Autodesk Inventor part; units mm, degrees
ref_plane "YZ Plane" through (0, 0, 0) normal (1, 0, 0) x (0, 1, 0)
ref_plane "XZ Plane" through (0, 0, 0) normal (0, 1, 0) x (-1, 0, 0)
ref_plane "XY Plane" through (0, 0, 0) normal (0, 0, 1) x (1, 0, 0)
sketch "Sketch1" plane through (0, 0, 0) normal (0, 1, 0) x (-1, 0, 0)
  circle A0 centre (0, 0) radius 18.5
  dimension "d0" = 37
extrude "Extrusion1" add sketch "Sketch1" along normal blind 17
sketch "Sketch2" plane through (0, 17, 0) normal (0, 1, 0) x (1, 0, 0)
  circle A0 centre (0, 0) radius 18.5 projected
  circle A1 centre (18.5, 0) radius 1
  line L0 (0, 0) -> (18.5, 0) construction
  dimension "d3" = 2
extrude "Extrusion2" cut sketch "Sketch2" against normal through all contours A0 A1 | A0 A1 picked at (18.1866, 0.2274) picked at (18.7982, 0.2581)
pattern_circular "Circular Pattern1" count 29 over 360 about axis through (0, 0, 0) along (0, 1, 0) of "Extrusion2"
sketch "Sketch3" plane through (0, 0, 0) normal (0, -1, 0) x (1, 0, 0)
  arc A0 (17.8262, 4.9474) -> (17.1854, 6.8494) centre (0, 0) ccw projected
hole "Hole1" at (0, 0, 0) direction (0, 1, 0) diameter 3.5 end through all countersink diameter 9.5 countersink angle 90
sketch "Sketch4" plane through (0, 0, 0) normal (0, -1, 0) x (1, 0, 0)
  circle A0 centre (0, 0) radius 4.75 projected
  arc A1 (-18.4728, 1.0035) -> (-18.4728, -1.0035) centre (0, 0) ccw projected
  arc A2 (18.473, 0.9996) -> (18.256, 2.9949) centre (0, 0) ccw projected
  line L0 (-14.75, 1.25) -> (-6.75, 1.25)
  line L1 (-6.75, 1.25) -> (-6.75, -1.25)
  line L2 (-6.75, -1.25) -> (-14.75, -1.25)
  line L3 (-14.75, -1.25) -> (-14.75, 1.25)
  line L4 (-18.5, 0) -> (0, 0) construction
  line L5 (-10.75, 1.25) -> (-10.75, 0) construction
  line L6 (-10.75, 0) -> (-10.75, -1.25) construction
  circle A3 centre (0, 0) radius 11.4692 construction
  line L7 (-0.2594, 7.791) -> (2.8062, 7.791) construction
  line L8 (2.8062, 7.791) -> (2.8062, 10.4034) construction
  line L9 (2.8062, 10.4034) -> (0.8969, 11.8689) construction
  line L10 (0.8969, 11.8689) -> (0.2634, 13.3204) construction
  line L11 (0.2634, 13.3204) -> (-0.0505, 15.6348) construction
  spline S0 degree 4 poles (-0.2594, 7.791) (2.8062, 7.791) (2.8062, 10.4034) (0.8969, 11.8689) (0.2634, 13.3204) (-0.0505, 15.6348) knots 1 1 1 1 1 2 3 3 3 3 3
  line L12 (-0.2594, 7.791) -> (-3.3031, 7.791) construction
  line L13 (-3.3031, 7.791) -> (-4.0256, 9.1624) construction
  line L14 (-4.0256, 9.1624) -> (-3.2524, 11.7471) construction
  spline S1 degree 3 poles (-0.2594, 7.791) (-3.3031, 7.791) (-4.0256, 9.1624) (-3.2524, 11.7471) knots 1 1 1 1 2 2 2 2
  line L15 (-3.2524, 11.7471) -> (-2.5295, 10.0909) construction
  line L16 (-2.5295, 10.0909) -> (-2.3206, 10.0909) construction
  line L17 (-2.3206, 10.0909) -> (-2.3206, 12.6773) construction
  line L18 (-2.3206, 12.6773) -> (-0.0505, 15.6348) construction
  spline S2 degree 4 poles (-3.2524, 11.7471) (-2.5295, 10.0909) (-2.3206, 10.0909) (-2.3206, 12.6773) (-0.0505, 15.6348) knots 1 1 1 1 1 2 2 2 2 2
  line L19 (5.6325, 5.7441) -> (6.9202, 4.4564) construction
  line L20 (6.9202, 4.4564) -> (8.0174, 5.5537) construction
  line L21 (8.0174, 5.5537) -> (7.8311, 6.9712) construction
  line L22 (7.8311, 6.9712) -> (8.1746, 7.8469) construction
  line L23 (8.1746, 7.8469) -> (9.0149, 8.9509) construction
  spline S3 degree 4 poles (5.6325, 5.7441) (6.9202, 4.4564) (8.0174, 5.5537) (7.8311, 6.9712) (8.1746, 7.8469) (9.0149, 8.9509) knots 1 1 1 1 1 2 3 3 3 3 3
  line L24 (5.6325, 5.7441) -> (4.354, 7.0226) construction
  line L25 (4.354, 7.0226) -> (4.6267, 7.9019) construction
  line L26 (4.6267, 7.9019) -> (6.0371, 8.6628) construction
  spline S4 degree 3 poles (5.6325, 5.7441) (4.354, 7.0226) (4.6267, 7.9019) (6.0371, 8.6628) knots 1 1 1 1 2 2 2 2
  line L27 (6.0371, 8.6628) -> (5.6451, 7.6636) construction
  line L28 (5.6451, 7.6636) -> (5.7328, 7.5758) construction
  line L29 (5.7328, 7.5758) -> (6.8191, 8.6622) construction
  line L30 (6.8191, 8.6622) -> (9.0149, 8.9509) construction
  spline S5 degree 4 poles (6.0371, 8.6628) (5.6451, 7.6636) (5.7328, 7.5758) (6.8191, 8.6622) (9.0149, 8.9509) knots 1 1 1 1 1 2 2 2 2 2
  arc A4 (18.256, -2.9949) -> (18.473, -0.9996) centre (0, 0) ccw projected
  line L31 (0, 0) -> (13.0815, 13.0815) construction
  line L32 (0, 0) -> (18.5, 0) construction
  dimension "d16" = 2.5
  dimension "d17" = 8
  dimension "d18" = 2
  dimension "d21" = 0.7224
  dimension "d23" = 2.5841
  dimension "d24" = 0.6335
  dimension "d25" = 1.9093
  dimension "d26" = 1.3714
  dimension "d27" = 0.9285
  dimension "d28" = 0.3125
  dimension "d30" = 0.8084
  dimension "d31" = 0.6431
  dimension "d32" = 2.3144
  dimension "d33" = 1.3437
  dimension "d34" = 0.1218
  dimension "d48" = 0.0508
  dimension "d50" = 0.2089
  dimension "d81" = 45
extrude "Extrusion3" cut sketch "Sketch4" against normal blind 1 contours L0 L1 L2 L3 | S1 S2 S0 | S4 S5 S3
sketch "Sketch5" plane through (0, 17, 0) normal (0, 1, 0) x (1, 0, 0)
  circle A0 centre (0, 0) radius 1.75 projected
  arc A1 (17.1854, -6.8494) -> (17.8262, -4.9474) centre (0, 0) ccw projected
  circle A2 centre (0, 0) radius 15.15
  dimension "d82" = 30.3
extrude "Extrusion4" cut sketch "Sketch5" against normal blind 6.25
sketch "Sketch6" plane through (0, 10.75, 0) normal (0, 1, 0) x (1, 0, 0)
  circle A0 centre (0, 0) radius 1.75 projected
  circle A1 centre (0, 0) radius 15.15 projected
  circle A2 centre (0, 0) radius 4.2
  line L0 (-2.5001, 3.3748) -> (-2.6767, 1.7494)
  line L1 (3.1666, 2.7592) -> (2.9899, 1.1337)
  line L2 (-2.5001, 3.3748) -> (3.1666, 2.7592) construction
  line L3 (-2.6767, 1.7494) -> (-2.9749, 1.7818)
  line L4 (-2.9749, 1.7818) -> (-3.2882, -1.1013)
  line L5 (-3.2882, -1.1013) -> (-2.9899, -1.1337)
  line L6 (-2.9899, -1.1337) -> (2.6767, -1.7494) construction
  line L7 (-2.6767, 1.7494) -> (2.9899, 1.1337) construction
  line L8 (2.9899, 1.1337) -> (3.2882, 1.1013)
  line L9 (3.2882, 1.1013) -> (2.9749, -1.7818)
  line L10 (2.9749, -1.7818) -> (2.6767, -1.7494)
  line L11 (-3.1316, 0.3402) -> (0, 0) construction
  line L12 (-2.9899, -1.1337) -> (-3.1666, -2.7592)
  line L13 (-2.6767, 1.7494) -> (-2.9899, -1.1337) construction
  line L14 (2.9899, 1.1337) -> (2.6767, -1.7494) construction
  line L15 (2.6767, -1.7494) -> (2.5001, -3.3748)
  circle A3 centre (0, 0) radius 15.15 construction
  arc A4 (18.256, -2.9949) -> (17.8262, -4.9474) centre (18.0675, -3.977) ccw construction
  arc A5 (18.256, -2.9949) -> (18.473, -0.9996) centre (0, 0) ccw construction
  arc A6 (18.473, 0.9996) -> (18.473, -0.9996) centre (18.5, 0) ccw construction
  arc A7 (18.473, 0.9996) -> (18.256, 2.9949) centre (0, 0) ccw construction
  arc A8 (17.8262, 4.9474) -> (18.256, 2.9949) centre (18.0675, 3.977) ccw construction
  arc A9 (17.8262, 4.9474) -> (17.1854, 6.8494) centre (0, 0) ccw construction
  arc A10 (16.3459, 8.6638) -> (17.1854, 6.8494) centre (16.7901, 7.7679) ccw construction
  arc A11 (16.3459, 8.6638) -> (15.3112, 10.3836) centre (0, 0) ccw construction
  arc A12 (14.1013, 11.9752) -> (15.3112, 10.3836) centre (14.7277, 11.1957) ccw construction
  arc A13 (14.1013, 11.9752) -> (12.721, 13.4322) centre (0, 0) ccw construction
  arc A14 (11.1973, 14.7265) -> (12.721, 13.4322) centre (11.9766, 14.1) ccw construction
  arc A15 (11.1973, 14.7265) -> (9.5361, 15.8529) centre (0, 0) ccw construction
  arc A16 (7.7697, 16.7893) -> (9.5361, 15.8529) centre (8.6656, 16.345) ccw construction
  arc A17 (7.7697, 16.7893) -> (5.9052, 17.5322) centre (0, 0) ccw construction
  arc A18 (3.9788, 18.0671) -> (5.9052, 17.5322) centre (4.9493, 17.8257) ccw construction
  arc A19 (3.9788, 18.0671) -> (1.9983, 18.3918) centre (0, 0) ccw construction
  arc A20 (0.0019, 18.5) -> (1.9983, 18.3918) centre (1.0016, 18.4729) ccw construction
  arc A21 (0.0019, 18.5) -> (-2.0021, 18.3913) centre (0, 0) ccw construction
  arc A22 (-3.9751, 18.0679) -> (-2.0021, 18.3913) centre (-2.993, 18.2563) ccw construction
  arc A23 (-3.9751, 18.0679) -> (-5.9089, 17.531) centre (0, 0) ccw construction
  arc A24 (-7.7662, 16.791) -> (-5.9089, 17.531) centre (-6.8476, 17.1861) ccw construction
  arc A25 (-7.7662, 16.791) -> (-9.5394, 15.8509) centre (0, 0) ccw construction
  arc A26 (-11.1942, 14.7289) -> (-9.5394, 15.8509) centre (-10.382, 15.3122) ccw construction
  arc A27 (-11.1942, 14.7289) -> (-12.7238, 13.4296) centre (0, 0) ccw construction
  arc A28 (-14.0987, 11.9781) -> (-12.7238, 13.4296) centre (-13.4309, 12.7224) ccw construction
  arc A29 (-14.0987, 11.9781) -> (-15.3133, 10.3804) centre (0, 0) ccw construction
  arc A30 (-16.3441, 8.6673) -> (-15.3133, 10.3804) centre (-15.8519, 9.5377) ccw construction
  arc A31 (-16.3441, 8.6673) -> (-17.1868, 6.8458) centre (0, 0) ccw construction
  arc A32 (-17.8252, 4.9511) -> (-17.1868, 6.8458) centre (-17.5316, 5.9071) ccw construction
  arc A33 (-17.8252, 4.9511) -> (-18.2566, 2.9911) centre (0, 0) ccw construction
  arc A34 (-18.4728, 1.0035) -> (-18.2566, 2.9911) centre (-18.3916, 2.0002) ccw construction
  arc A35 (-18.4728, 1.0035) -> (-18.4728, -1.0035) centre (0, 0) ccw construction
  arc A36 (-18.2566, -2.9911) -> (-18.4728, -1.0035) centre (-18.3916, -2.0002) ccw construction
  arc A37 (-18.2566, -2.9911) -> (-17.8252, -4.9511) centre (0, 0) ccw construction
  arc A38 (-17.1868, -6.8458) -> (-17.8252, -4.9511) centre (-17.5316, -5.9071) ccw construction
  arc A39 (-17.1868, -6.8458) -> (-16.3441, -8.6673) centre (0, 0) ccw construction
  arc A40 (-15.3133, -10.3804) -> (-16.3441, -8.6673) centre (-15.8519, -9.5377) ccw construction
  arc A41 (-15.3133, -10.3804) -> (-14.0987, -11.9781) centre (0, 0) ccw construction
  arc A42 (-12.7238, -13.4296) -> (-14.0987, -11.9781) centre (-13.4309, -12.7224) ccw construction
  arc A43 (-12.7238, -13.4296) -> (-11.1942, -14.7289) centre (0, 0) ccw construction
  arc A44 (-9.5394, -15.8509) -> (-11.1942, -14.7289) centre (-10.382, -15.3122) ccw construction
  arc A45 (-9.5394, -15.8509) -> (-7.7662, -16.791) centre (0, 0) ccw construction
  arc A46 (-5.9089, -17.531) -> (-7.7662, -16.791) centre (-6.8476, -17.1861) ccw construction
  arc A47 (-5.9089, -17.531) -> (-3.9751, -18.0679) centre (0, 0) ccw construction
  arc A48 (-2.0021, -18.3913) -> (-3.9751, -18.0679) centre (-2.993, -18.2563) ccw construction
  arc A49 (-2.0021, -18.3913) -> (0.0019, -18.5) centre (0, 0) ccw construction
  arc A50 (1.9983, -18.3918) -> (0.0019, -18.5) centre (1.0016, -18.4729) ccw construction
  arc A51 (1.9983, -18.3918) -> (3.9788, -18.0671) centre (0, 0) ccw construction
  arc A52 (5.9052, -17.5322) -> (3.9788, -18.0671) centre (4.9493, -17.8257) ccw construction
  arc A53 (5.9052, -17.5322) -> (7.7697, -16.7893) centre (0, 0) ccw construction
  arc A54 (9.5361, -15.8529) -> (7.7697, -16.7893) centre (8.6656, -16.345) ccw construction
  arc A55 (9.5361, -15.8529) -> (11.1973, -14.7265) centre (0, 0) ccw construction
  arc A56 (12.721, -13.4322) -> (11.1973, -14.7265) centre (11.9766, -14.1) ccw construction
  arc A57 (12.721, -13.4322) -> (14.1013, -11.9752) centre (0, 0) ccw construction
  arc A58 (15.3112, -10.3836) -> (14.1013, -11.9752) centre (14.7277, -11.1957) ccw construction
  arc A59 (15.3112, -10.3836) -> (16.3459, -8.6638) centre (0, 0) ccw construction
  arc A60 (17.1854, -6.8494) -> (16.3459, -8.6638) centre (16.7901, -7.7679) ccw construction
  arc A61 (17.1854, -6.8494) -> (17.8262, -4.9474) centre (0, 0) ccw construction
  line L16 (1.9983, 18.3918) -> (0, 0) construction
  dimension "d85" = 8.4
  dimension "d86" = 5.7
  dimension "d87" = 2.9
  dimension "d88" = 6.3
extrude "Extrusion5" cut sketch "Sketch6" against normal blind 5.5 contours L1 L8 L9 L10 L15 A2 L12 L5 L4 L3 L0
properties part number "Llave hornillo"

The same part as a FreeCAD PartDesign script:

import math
import FreeCAD as App
import Part
import Sketcher
Q = App.Units.Quantity


def add_polygon(sketch, points):
    """Adds a closed chain of lines whose ends are joined by coincident constraints."""
    first, n = sketch.GeometryCount, len(points)
    for a, b in zip(points, points[1:] + points[:1]):
        sketch.addGeometry(Part.LineSegment(App.Vector(*a, 0), App.Vector(*b, 0)), False)
    for i in range(n):
        sketch.addConstraint(Sketcher.Constraint("Coincident", first + i, 2, first + (i + 1) % n, 1))

doc = App.newDocument("Part")
body = doc.addObject("PartDesign::Body", "Body")

sketch1 = body.newObject("Sketcher::SketchObject", "Sketch")
sketch1.AttachmentSupport = (doc.getObject("XZ_Plane"), [""])
sketch1.MapMode = "FlatFace"
sketch1.addGeometry(Part.Circle(App.Vector(0, 0, 0), App.Vector(0, 0, 1), 18.5), False)
sketch1.addConstraint(Sketcher.Constraint("Coincident", 0, 3, -1, 1))
sketch1.addConstraint(Sketcher.Constraint("Diameter", 0, Q("37 mm")))
pad1 = body.newObject("PartDesign::Pad", "Pad")
pad1.Profile = sketch1
pad1.Length = 17
pad1.Reversed = True

sketch2 = body.newObject("Sketcher::SketchObject", "Sketch001")
sketch2.AttachmentSupport = (doc.getObject("XZ_Plane"), [""])
sketch2.MapMode = "FlatFace"
sketch2.AttachmentOffset = App.Placement(App.Vector(0, 0, -17), App.Rotation())
sketch2.addGeometry(Part.Circle(App.Vector(18.5, 0, 0), App.Vector(0, 0, 1), 1), False)
sketch2.addConstraint(Sketcher.Constraint("PointOnObject", 0, 3, -1))
sketch2.addConstraint(Sketcher.Constraint("Diameter", 0, Q("2 mm")))
sketch2.addConstraint(Sketcher.Constraint("DistanceX", -1, 1, 0, 3, Q("18.5 mm")))
pocket1 = body.newObject("PartDesign::Pocket", "Pocket")
pocket1.Profile = sketch2
pocket1.Type = "ThroughAll"
pocket1.Reversed = True
doc.recompute()

polarpattern = body.newObject("PartDesign::PolarPattern", "PolarPattern")
polarpattern.Originals = [pocket1]
polarpattern.Axis = (doc.getObject("Y_Axis"), [""])
polarpattern.Angle = 360
polarpattern.Occurrences = 29
body.Tip = polarpattern

sketch3 = body.newObject("Sketcher::SketchObject", "Sketch002")
sketch3.AttachmentSupport = (doc.getObject("XZ_Plane"), [""])
sketch3.MapMode = "FlatFace"
sketch3.addGeometry(Part.Circle(App.Vector(0, 0, 0), App.Vector(0, 0, 1), 1.75), False)
sketch3.addConstraint(Sketcher.Constraint("Coincident", 0, 3, -1, 1))
sketch3.addConstraint(Sketcher.Constraint("Diameter", 0, Q("3.5 mm")))
doc.recompute()
hole = body.newObject("PartDesign::Hole", "Hole")
hole.Profile = sketch3
hole.ThreadType = "None"
hole.Diameter = 3.5
hole.DepthType = "ThroughAll"
hole.HoleCutType = "Countersink"
hole.HoleCutDiameter = 9.5
hole.HoleCutCountersinkAngle = 90

sketch4 = body.newObject("Sketcher::SketchObject", "Sketch003")
sketch4.AttachmentSupport = (doc.getObject("XZ_Plane"), [""])
sketch4.MapMode = "FlatFace"
add_polygon(sketch4, [(-6.75, 1.25), (-14.75, 1.25), (-14.75, -1.25), (-6.75, -1.25)])
sketch4.addGeometry(Part.BSplineCurve([App.Vector(-0.2594, 7.791, 0), App.Vector(-3.3031, 7.791, 0), App.Vector(-4.0256, 9.1624, 0), App.Vector(-3.2524, 11.7471, 0)], [4, 4], [1, 2], False, 3, [1, 1, 1, 1], False), False)
sketch4.addGeometry(Part.BSplineCurve([App.Vector(-0.2594, 7.791, 0), App.Vector(2.8062, 7.791, 0), App.Vector(2.8062, 10.4034, 0), App.Vector(0.8969, 11.8689, 0), App.Vector(0.2634, 13.3204, 0), App.Vector(-0.0505, 15.6348, 0)], [5, 1, 5], [1, 2, 3], False, 4, [1, 1, 1, 1, 1, 1], False), False)
sketch4.addGeometry(Part.BSplineCurve([App.Vector(-3.2524, 11.7471, 0), App.Vector(-2.5295, 10.0909, 0), App.Vector(-2.3206, 10.0909, 0), App.Vector(-2.3206, 12.6773, 0), App.Vector(-0.0505, 15.6348, 0)], [5, 5], [1, 2], False, 4, [1, 1, 1, 1, 1], False), False)
sketch4.addGeometry(Part.BSplineCurve([App.Vector(5.6325, 5.7441, 0), App.Vector(4.354, 7.0226, 0), App.Vector(4.6267, 7.9019, 0), App.Vector(6.0371, 8.6628, 0)], [4, 4], [1, 2], False, 3, [1, 1, 1, 1], False), False)
sketch4.addGeometry(Part.BSplineCurve([App.Vector(5.6325, 5.7441, 0), App.Vector(6.9202, 4.4564, 0), App.Vector(8.0174, 5.5537, 0), App.Vector(7.8311, 6.9712, 0), App.Vector(8.1746, 7.8469, 0), App.Vector(9.0149, 8.9509, 0)], [5, 1, 5], [1, 2, 3], False, 4, [1, 1, 1, 1, 1, 1], False), False)
sketch4.addGeometry(Part.BSplineCurve([App.Vector(6.0371, 8.6628, 0), App.Vector(5.6451, 7.6636, 0), App.Vector(5.7328, 7.5758, 0), App.Vector(6.8191, 8.6622, 0), App.Vector(9.0149, 8.9509, 0)], [5, 5], [1, 2], False, 4, [1, 1, 1, 1, 1], False), False)
sketch4.addConstraint(Sketcher.Constraint("Block", 4))
sketch4.addConstraint(Sketcher.Constraint("Block", 5))
sketch4.addConstraint(Sketcher.Constraint("Block", 6))
sketch4.addConstraint(Sketcher.Constraint("Block", 7))
sketch4.addConstraint(Sketcher.Constraint("Block", 8))
sketch4.addConstraint(Sketcher.Constraint("Block", 9))
sketch4.addConstraint(Sketcher.Constraint("Horizontal", 0))
sketch4.addConstraint(Sketcher.Constraint("Vertical", 1))
sketch4.addConstraint(Sketcher.Constraint("Horizontal", 2))
sketch4.addConstraint(Sketcher.Constraint("Vertical", 3))
sketch4.addConstraint(Sketcher.Constraint("DistanceX", 0, 2, 0, 1, Q("8 mm")))
sketch4.addConstraint(Sketcher.Constraint("DistanceY", 1, 2, 1, 1, Q("2.5 mm")))
sketch4.addConstraint(Sketcher.Constraint("DistanceX", 0, 2, -1, 1, Q("14.75 mm")))
sketch4.addConstraint(Sketcher.Constraint("DistanceY", -1, 1, 0, 2, Q("1.25 mm")))
pocket2 = body.newObject("PartDesign::Pocket", "Pocket001")
pocket2.Profile = sketch4
pocket2.Length = 1

sketch5 = body.newObject("Sketcher::SketchObject", "Sketch004")
sketch5.AttachmentSupport = (doc.getObject("XZ_Plane"), [""])
sketch5.MapMode = "FlatFace"
sketch5.AttachmentOffset = App.Placement(App.Vector(0, 0, -17), App.Rotation())
sketch5.addGeometry(Part.Circle(App.Vector(0, 0, 0), App.Vector(0, 0, 1), 15.15), False)
sketch5.addGeometry(Part.Circle(App.Vector(0, 0, 0), App.Vector(0, 0, 1), 1.75), False)
sketch5.addConstraint(Sketcher.Constraint("Coincident", 0, 3, -1, 1))
sketch5.addConstraint(Sketcher.Constraint("Coincident", 1, 3, -1, 1))
sketch5.addConstraint(Sketcher.Constraint("Diameter", 0, Q("30.3 mm")))
sketch5.addConstraint(Sketcher.Constraint("Diameter", 1, Q("3.5 mm")))
pocket3 = body.newObject("PartDesign::Pocket", "Pocket002")
pocket3.Profile = sketch5
pocket3.Length = 6.25
pocket3.Reversed = True

sketch6 = body.newObject("Sketcher::SketchObject", "Sketch005")
sketch6.AttachmentSupport = (doc.getObject("XZ_Plane"), [""])
sketch6.MapMode = "FlatFace"
sketch6.AttachmentOffset = App.Placement(App.Vector(0, 0, -10.75), App.Rotation())
sketch6.addGeometry(Part.LineSegment(App.Vector(2.9899, -1.1337, 0), App.Vector(3.1666, -2.7592, 0)), False)
sketch6.addGeometry(Part.ArcOfCircle(Part.Circle(App.Vector(0, 0, 0), App.Vector(0, 0, 1), 4.2), math.radians(-126.531576), math.radians(-41.067092)), False)
sketch6.addGeometry(Part.LineSegment(App.Vector(-2.5001, -3.3748, 0), App.Vector(-2.6767, -1.7494, 0)), False)
sketch6.addGeometry(Part.LineSegment(App.Vector(-2.6767, -1.7494, 0), App.Vector(-2.9749, -1.7818, 0)), False)
sketch6.addGeometry(Part.LineSegment(App.Vector(-2.9749, -1.7818, 0), App.Vector(-3.2882, 1.1013, 0)), False)
sketch6.addGeometry(Part.LineSegment(App.Vector(-3.2882, 1.1013, 0), App.Vector(-2.9899, 1.1337, 0)), False)
sketch6.addGeometry(Part.LineSegment(App.Vector(-2.9899, 1.1337, 0), App.Vector(-3.1666, 2.7592, 0)), False)
sketch6.addGeometry(Part.ArcOfCircle(Part.Circle(App.Vector(0, 0, 0), App.Vector(0, 0, 1), 4.2), math.radians(53.468424), math.radians(138.932908)), False)
sketch6.addGeometry(Part.LineSegment(App.Vector(2.5001, 3.3748, 0), App.Vector(2.6767, 1.7494, 0)), False)
sketch6.addGeometry(Part.LineSegment(App.Vector(2.6767, 1.7494, 0), App.Vector(2.9749, 1.7818, 0)), False)
sketch6.addGeometry(Part.LineSegment(App.Vector(2.9749, 1.7818, 0), App.Vector(3.2882, -1.1013, 0)), False)
sketch6.addGeometry(Part.LineSegment(App.Vector(3.2882, -1.1013, 0), App.Vector(2.9899, -1.1337, 0)), False)
sketch6.addGeometry(Part.Circle(App.Vector(0, 0, 0), App.Vector(0, 0, 1), 1.75), False)
sketch6.addConstraint(Sketcher.Constraint("Coincident", 0, 2, 1, 2))
sketch6.addConstraint(Sketcher.Constraint("Coincident", 1, 1, 2, 1))
sketch6.addConstraint(Sketcher.Constraint("Coincident", 2, 2, 3, 1))
sketch6.addConstraint(Sketcher.Constraint("Coincident", 3, 2, 4, 1))
sketch6.addConstraint(Sketcher.Constraint("Coincident", 4, 2, 5, 1))
sketch6.addConstraint(Sketcher.Constraint("Coincident", 5, 2, 6, 1))
sketch6.addConstraint(Sketcher.Constraint("Coincident", 6, 2, 7, 2))
sketch6.addConstraint(Sketcher.Constraint("Coincident", 7, 1, 8, 1))
sketch6.addConstraint(Sketcher.Constraint("Coincident", 8, 2, 9, 1))
sketch6.addConstraint(Sketcher.Constraint("Coincident", 9, 2, 10, 1))
sketch6.addConstraint(Sketcher.Constraint("Coincident", 10, 2, 11, 1))
sketch6.addConstraint(Sketcher.Constraint("Coincident", 11, 2, 0, 1))
sketch6.addConstraint(Sketcher.Constraint("Coincident", 1, 3, -1, 1))
sketch6.addConstraint(Sketcher.Constraint("Coincident", 7, 3, -1, 1))
sketch6.addConstraint(Sketcher.Constraint("Coincident", 12, 3, -1, 1))
sketch6.addConstraint(Sketcher.Constraint("Equal", 1, 7))
sketch6.addConstraint(Sketcher.Constraint("Symmetric", 2, 2, 8, 2, -1, 1))
sketch6.addConstraint(Sketcher.Constraint("Symmetric", 3, 2, 9, 2, -1, 1))
sketch6.addConstraint(Sketcher.Constraint("Symmetric", 4, 2, 10, 2, -1, 1))
sketch6.addConstraint(Sketcher.Constraint("Symmetric", 5, 2, 11, 2, -1, 1))
sketch6.addConstraint(Sketcher.Constraint("Parallel", 0, 2))
sketch6.addConstraint(Sketcher.Constraint("Perpendicular", 2, 3))
sketch6.addConstraint(Sketcher.Constraint("Perpendicular", 3, 4))
sketch6.addConstraint(Sketcher.Constraint("Perpendicular", 4, 5))
sketch6.addConstraint(Sketcher.Constraint("Perpendicular", 5, 6))
sketch6.addConstraint(Sketcher.Constraint("Parallel", 6, 8))
sketch6.addConstraint(Sketcher.Constraint("Equal", 0, 2))
sketch6.addConstraint(Sketcher.Constraint("Equal", 3, 5))
sketch6.addConstraint(Sketcher.Constraint("Radius", 1, Q("4.2 mm")))
sketch6.addConstraint(Sketcher.Constraint("Distance", 4, Q("2.9 mm")))
sketch6.addConstraint(Sketcher.Constraint("Diameter", 12, Q("3.5 mm")))
sketch6.addConstraint(Sketcher.Constraint("Angle", 2, Q("96.2009 deg")))
sketch6.addConstraint(Sketcher.Constraint("Distance", 3, Q("0.3 mm")))
sketch6.addConstraint(Sketcher.Constraint("DistanceX", 1, 1, -1, 1, Q("2.5 mm")))
pocket4 = body.newObject("PartDesign::Pocket", "Pocket003")
pocket4.Profile = sketch6
pocket4.Length = 5.5
pocket4.Reversed = True

doc.recompute()
